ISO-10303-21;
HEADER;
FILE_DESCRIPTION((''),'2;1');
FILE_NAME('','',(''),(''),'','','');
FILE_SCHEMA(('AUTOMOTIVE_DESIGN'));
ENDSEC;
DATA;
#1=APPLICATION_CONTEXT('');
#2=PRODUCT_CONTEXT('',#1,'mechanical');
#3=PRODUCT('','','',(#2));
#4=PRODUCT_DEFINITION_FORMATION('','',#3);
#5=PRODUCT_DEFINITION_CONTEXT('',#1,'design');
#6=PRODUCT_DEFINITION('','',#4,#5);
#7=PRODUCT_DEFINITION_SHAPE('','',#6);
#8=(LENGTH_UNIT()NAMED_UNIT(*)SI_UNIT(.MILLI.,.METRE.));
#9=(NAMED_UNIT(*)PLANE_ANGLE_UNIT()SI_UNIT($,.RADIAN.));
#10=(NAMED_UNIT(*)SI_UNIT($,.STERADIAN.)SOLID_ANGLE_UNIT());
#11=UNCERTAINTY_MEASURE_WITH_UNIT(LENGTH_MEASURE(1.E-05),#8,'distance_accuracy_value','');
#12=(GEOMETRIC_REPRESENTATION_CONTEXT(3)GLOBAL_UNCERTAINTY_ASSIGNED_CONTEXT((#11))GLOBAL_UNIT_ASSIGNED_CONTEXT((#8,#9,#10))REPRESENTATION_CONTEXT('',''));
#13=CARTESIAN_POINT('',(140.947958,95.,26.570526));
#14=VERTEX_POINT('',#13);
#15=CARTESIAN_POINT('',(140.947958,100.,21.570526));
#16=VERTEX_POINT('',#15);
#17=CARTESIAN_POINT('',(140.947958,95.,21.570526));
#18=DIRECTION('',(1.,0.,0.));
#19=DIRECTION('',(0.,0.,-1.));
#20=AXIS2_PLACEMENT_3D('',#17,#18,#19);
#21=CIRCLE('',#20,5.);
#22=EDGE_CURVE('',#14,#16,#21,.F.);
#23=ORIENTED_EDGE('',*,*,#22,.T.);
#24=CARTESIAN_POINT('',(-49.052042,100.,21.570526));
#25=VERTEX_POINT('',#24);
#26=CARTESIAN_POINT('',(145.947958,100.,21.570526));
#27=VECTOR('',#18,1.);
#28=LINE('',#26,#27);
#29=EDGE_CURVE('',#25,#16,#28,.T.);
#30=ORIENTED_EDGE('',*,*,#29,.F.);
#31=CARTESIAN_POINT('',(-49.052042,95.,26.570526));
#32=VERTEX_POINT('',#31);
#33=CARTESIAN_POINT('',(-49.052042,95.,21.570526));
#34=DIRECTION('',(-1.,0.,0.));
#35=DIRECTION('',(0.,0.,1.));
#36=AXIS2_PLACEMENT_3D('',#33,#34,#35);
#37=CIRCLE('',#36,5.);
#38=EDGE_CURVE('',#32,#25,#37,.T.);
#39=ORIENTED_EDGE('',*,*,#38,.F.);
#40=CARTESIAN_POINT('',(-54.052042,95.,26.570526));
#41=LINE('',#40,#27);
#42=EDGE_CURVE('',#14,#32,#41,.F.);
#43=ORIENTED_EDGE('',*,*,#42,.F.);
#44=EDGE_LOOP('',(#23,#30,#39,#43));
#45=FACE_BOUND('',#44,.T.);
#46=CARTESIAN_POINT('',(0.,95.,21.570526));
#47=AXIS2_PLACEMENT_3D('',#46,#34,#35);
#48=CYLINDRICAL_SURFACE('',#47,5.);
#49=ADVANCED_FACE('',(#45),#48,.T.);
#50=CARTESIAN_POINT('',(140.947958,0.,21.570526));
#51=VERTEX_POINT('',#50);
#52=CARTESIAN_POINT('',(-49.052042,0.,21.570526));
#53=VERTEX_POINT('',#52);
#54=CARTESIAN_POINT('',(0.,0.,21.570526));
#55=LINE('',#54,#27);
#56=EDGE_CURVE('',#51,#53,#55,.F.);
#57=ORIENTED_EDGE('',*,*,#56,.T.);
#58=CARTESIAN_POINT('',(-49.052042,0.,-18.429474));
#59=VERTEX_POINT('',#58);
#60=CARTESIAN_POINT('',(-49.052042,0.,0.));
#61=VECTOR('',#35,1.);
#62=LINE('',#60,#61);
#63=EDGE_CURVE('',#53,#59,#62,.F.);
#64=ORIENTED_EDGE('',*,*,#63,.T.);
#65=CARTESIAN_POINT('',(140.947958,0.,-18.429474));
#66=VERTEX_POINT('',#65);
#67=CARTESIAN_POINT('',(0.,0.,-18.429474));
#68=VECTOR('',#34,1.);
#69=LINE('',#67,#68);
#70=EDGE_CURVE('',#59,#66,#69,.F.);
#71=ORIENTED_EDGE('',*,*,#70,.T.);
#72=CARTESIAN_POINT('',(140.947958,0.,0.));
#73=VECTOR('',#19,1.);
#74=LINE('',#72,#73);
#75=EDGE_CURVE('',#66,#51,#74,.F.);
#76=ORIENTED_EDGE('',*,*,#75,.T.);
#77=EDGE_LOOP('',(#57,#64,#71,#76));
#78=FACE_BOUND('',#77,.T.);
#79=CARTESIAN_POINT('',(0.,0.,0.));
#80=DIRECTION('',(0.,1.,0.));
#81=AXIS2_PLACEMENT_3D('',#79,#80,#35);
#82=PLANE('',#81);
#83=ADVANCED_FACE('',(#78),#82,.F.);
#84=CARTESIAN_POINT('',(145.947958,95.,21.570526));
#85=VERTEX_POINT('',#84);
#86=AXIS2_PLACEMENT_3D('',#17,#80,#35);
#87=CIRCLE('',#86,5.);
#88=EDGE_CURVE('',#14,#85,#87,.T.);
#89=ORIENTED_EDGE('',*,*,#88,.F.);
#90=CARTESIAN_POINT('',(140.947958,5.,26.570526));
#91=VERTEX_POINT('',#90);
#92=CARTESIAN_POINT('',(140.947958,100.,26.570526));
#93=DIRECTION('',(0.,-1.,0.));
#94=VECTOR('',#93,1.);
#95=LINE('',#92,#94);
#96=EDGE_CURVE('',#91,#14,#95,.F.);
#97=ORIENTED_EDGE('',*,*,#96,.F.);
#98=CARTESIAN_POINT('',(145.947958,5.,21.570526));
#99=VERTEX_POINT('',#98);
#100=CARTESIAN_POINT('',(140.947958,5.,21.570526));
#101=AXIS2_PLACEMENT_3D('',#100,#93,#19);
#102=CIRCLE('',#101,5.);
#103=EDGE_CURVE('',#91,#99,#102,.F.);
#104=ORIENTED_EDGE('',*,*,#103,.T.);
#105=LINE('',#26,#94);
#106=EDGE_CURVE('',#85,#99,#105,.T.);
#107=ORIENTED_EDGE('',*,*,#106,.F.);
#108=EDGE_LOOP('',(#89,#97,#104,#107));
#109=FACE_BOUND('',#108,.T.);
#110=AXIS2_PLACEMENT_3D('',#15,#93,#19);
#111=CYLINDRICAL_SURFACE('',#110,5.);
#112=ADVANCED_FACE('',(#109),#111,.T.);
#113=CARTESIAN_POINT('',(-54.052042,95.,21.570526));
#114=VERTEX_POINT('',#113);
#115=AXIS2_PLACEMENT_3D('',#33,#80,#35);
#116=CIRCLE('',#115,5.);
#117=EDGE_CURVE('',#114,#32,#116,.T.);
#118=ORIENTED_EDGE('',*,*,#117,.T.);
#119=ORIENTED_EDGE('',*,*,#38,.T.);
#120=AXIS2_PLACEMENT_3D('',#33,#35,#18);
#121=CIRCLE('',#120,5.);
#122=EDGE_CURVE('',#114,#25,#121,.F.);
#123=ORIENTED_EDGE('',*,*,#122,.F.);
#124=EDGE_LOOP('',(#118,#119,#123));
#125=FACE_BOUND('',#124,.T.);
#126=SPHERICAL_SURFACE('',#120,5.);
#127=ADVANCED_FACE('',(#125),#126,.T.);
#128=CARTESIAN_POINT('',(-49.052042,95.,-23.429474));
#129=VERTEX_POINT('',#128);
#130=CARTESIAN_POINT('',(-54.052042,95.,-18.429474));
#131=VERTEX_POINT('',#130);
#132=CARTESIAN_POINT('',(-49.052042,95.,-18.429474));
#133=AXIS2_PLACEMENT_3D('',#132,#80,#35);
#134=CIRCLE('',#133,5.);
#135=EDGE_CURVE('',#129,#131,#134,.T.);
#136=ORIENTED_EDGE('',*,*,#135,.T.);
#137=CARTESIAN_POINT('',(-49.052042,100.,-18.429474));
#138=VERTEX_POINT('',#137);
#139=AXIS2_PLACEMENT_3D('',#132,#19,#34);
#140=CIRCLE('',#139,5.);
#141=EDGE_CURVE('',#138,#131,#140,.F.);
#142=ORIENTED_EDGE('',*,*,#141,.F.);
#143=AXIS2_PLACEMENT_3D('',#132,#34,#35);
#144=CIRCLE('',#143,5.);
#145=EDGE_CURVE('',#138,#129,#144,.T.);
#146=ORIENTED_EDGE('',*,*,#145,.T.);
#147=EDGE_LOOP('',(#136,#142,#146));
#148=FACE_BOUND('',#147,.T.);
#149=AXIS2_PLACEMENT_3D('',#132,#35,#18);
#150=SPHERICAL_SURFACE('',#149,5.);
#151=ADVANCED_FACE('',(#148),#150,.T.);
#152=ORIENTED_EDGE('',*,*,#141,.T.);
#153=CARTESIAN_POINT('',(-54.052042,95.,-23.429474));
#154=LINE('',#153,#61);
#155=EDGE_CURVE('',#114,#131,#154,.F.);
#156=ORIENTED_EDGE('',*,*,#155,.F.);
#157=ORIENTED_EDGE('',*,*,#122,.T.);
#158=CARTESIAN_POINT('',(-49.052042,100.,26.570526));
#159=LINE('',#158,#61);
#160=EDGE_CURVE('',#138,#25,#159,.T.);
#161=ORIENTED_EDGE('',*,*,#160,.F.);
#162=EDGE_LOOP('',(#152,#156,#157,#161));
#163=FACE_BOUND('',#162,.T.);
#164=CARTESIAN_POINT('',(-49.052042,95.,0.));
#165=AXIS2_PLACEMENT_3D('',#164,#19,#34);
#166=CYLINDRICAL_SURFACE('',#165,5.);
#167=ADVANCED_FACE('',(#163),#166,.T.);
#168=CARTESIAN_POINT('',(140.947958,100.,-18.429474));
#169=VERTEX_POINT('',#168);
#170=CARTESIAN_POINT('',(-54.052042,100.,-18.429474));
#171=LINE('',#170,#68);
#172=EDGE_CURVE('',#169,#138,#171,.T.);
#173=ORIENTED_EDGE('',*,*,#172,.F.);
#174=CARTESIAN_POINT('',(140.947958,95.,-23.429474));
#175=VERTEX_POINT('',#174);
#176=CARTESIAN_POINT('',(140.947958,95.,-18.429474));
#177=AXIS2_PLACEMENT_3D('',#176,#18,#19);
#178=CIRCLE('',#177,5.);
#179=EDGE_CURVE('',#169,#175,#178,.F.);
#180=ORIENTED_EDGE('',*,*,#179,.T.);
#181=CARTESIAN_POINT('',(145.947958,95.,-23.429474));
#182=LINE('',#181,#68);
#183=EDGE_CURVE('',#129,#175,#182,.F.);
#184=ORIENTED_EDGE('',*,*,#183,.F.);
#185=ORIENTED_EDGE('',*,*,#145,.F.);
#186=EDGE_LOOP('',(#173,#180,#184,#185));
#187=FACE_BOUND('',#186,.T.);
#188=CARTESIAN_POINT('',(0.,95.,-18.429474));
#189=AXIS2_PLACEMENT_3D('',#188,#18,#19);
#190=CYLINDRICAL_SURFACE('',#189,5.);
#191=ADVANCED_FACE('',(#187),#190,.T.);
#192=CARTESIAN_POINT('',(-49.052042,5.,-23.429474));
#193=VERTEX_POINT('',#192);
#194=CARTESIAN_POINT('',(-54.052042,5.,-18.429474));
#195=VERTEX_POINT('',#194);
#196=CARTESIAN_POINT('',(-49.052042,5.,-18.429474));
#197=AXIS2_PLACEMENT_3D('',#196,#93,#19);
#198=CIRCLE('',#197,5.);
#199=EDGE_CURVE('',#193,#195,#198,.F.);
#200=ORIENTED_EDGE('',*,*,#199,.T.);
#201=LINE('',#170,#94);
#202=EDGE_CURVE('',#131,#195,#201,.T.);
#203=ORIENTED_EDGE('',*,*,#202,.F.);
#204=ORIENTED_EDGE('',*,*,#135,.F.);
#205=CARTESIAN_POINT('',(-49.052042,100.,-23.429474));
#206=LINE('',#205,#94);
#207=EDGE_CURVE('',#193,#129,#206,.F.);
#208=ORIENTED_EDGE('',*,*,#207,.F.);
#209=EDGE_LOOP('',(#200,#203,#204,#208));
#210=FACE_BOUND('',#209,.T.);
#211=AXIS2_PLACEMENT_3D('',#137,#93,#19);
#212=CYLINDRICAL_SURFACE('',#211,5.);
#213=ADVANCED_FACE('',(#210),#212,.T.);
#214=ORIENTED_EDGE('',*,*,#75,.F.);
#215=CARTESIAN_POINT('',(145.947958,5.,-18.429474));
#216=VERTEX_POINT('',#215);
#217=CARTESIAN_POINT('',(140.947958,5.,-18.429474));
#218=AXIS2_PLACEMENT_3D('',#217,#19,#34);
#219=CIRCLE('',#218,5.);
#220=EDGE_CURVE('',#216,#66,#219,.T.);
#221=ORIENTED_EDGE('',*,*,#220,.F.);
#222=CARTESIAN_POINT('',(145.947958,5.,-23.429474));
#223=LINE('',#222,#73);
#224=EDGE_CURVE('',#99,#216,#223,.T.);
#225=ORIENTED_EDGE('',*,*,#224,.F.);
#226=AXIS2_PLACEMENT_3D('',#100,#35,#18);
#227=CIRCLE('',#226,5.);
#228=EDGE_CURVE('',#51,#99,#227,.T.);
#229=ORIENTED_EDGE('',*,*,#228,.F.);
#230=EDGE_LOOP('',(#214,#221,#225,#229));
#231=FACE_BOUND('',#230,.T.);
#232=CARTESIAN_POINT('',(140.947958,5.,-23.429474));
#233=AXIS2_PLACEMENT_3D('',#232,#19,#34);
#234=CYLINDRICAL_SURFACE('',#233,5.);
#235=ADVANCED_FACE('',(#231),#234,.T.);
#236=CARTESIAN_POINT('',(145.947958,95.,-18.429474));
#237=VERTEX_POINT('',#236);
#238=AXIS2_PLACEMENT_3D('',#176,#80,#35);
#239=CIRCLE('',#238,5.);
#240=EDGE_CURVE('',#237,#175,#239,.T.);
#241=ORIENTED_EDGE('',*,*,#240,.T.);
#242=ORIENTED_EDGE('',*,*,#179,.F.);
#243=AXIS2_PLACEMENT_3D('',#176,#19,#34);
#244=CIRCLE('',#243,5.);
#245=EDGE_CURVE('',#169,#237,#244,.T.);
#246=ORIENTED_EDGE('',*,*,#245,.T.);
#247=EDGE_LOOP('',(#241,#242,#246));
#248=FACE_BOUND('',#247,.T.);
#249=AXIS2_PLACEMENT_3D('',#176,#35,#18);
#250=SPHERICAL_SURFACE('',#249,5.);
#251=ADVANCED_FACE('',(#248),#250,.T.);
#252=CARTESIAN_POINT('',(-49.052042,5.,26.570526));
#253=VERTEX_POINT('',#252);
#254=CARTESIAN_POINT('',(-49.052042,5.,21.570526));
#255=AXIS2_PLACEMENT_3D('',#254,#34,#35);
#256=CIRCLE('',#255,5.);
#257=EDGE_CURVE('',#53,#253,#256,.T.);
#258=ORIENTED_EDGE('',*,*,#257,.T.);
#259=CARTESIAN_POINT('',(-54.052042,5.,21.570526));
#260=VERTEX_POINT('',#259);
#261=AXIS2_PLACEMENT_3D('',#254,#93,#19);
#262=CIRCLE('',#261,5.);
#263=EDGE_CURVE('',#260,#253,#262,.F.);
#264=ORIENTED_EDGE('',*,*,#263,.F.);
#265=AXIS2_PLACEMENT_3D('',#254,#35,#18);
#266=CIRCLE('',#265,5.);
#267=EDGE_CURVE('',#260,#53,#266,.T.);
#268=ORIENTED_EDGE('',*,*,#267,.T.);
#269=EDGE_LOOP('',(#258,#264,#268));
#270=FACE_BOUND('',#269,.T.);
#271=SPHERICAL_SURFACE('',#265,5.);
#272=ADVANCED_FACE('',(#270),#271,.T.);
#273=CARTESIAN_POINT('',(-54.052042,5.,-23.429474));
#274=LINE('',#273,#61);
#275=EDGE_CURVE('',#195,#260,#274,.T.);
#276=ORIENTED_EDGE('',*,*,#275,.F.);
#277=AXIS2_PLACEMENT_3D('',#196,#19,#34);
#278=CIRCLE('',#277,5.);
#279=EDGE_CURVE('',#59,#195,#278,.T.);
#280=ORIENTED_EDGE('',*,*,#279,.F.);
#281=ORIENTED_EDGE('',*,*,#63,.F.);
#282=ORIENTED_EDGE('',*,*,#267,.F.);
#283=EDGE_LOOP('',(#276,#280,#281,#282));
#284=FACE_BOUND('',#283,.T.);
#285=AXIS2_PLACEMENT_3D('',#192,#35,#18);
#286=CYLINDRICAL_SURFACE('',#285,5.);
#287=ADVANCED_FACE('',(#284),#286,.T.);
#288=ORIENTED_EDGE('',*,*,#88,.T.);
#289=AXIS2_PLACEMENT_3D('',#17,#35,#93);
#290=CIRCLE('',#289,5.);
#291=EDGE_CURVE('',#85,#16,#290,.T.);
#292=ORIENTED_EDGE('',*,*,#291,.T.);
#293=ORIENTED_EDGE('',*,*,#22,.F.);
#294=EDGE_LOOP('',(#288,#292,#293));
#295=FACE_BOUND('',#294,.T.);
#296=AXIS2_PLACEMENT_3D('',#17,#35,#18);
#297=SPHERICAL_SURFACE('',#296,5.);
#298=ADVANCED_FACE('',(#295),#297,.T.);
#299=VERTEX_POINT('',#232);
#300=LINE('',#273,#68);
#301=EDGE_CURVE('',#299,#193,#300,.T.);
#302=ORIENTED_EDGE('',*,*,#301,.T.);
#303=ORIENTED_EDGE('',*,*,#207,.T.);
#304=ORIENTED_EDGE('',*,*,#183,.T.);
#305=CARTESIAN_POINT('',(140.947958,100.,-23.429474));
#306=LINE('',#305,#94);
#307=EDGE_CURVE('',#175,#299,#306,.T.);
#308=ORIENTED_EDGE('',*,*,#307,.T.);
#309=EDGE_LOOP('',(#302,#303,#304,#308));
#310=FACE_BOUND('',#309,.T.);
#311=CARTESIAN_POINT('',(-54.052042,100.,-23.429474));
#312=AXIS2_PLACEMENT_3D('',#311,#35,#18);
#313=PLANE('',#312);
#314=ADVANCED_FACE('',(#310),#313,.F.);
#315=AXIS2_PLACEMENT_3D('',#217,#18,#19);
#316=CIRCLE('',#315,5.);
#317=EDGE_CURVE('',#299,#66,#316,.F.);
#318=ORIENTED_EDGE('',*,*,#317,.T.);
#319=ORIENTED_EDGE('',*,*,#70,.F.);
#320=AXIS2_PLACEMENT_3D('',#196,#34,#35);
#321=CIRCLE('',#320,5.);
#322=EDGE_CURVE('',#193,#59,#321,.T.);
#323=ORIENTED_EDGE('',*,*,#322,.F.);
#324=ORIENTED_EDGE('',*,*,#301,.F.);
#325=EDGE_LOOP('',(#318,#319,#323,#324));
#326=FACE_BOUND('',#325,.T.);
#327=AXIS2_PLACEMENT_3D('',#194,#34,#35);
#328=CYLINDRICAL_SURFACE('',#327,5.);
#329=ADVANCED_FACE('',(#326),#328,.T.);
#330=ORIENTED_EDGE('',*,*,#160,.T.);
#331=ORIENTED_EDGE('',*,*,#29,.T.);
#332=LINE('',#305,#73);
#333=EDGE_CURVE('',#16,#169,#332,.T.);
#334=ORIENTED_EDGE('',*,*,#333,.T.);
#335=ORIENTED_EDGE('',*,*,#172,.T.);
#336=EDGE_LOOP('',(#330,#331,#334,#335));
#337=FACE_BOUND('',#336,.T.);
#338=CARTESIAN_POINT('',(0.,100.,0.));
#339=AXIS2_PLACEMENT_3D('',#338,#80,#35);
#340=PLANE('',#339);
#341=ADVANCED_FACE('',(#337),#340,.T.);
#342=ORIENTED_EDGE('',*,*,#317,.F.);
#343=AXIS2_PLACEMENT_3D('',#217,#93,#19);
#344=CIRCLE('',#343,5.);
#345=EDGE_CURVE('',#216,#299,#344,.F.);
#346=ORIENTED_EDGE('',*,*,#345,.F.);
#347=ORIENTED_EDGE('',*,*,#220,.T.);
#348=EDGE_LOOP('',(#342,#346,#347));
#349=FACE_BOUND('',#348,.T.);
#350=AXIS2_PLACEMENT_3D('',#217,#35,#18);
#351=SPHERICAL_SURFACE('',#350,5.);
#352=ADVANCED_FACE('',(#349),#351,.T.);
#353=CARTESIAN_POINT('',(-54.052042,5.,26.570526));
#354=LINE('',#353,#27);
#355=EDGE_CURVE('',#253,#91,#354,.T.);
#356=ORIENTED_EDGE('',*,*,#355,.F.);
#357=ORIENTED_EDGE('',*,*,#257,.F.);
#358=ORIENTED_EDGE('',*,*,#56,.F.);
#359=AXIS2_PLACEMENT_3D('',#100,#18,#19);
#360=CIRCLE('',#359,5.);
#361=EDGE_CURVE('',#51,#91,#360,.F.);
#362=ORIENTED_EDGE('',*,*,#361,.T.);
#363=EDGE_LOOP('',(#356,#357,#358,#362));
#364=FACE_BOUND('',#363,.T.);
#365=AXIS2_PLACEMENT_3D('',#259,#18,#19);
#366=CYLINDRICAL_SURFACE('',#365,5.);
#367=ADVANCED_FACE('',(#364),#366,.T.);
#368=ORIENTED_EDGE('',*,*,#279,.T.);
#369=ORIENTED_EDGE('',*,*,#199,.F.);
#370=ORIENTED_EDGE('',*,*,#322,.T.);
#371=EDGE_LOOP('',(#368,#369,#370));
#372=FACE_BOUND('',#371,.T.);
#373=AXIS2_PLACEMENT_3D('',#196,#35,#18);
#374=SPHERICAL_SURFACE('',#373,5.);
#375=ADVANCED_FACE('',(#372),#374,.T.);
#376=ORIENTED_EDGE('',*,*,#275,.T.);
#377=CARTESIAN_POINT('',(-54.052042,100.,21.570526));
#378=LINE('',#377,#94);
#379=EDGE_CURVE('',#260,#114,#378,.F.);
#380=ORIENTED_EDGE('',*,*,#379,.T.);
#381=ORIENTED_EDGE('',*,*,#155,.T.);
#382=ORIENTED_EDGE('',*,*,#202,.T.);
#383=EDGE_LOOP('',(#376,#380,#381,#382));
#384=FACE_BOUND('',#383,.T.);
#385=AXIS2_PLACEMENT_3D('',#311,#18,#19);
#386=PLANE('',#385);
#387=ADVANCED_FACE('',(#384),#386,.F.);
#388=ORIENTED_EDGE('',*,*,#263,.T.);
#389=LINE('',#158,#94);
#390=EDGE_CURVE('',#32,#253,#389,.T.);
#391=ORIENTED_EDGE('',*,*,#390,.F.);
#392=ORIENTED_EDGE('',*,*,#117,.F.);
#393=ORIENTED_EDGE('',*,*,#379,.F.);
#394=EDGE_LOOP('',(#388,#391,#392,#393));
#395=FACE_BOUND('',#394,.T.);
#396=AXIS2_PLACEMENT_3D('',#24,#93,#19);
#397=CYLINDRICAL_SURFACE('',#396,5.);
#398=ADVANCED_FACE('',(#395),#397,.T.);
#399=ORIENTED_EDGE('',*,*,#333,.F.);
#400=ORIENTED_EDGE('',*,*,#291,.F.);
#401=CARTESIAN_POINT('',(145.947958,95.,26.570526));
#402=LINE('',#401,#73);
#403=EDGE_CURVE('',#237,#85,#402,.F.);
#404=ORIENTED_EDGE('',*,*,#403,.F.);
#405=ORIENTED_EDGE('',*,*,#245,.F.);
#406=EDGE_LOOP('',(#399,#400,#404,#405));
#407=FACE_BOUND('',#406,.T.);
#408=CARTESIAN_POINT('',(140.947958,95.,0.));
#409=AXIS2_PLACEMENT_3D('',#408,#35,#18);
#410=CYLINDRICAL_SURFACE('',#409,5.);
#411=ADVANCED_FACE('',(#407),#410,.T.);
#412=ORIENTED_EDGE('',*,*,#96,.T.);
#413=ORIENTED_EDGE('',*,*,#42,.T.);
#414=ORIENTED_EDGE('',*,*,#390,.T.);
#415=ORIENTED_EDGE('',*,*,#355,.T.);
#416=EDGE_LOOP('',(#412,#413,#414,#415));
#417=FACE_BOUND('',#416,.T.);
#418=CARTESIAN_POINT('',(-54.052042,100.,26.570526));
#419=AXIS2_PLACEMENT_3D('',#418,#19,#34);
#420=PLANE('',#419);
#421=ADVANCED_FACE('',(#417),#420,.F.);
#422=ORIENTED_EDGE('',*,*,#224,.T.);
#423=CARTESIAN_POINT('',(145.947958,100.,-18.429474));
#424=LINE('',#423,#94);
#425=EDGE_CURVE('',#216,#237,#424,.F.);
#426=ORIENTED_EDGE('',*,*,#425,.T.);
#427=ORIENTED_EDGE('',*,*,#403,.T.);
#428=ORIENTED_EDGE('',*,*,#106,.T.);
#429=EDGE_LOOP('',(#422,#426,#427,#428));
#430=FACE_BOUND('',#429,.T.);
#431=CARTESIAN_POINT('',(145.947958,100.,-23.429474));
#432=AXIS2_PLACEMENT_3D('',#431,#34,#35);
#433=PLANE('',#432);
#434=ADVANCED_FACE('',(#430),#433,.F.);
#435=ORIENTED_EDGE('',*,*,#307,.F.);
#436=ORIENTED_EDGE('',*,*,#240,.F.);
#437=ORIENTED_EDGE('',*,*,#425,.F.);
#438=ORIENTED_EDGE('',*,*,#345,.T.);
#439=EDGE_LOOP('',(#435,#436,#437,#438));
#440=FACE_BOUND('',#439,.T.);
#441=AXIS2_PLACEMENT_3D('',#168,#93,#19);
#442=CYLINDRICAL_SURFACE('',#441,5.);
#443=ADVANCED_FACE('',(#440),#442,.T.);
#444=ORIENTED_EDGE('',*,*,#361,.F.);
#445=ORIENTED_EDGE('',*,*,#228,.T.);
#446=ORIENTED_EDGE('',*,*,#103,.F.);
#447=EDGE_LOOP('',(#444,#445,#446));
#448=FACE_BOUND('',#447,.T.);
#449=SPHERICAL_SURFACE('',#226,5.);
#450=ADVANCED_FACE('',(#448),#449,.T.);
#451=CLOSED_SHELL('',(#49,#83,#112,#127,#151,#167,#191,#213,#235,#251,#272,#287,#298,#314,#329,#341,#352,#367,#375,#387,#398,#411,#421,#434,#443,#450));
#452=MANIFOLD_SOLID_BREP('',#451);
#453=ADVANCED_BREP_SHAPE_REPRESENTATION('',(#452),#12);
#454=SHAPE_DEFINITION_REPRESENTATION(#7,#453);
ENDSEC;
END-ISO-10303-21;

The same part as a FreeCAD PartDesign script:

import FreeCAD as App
import Part
import Sketcher

V = App.Vector

doc = App.newDocument("Part")
params = doc.addObject("Spreadsheet::Sheet", "Params")
for row, (alias, value) in enumerate([
    ("sketch1_width", "200 mm"),
    ("sketch1_height", "50 mm"),
    ("pad1_length", "100 mm"),
    ("fillet_radius", "5 mm"),
], start=1):
    params.set(f"A{row}", alias)
    params.set(f"B{row}", "=" + value)
    params.setAlias(f"B{row}", alias)

body = doc.addObject("PartDesign::Body", "Body")

sketch1 = body.newObject("Sketcher::SketchObject", "Sketch")
sketch1.AttachmentSupport = (doc.getObject("XZ_Plane"), [""])
sketch1.MapMode = "FlatFace"
sketch1.addGeometry([
    Part.LineSegment(V(-54.052042, -23.429474, 0), V(-54.052042, 26.570526, 0)),
    Part.LineSegment(V(-54.052042, 26.570526, 0), V(145.947958, 26.570526, 0)),
    Part.LineSegment(V(145.947958, 26.570526, 0), V(145.947958, -23.429474, 0)),
    Part.LineSegment(V(145.947958, -23.429474, 0), V(-54.052042, -23.429474, 0)),
], False)
sketch1.addConstraint([
    Sketcher.Constraint("Coincident", 0, 2, 1, 1),
    Sketcher.Constraint("Coincident", 1, 2, 2, 1),
    Sketcher.Constraint("Coincident", 2, 2, 3, 1),
    Sketcher.Constraint("Coincident", 3, 2, 0, 1),
    Sketcher.Constraint("Vertical", 0),
    Sketcher.Constraint("Horizontal", 1),
    Sketcher.Constraint("Vertical", 2),
    Sketcher.Constraint("Horizontal", 3),
    Sketcher.Constraint("DistanceX", 1, 1, 1, 2, 200.0),
    Sketcher.Constraint("DistanceY", 0, 1, 0, 2, 50.0),
    Sketcher.Constraint("DistanceX", 0, 2, -1, 1, 54.052042),
    Sketcher.Constraint("DistanceY", -1, 1, 0, 2, 26.570526),
])
sketch1.setExpression("Constraints[8]", "Params.sketch1_width")
sketch1.setExpression("Constraints[9]", "Params.sketch1_height")
pad1 = body.newObject("PartDesign::Pad", "Pad")
pad1.Profile = sketch1
pad1.setExpression("Length", "Params.pad1_length")
pad1.Reversed = True
doc.recompute()

fillet = body.newObject("PartDesign::Fillet", "Fillet")
fillet.Base = (pad1, ["Edge1"])
fillet.UseAllEdges = True
fillet.setExpression("Radius", "Params.fillet_radius")

doc.recompute()
